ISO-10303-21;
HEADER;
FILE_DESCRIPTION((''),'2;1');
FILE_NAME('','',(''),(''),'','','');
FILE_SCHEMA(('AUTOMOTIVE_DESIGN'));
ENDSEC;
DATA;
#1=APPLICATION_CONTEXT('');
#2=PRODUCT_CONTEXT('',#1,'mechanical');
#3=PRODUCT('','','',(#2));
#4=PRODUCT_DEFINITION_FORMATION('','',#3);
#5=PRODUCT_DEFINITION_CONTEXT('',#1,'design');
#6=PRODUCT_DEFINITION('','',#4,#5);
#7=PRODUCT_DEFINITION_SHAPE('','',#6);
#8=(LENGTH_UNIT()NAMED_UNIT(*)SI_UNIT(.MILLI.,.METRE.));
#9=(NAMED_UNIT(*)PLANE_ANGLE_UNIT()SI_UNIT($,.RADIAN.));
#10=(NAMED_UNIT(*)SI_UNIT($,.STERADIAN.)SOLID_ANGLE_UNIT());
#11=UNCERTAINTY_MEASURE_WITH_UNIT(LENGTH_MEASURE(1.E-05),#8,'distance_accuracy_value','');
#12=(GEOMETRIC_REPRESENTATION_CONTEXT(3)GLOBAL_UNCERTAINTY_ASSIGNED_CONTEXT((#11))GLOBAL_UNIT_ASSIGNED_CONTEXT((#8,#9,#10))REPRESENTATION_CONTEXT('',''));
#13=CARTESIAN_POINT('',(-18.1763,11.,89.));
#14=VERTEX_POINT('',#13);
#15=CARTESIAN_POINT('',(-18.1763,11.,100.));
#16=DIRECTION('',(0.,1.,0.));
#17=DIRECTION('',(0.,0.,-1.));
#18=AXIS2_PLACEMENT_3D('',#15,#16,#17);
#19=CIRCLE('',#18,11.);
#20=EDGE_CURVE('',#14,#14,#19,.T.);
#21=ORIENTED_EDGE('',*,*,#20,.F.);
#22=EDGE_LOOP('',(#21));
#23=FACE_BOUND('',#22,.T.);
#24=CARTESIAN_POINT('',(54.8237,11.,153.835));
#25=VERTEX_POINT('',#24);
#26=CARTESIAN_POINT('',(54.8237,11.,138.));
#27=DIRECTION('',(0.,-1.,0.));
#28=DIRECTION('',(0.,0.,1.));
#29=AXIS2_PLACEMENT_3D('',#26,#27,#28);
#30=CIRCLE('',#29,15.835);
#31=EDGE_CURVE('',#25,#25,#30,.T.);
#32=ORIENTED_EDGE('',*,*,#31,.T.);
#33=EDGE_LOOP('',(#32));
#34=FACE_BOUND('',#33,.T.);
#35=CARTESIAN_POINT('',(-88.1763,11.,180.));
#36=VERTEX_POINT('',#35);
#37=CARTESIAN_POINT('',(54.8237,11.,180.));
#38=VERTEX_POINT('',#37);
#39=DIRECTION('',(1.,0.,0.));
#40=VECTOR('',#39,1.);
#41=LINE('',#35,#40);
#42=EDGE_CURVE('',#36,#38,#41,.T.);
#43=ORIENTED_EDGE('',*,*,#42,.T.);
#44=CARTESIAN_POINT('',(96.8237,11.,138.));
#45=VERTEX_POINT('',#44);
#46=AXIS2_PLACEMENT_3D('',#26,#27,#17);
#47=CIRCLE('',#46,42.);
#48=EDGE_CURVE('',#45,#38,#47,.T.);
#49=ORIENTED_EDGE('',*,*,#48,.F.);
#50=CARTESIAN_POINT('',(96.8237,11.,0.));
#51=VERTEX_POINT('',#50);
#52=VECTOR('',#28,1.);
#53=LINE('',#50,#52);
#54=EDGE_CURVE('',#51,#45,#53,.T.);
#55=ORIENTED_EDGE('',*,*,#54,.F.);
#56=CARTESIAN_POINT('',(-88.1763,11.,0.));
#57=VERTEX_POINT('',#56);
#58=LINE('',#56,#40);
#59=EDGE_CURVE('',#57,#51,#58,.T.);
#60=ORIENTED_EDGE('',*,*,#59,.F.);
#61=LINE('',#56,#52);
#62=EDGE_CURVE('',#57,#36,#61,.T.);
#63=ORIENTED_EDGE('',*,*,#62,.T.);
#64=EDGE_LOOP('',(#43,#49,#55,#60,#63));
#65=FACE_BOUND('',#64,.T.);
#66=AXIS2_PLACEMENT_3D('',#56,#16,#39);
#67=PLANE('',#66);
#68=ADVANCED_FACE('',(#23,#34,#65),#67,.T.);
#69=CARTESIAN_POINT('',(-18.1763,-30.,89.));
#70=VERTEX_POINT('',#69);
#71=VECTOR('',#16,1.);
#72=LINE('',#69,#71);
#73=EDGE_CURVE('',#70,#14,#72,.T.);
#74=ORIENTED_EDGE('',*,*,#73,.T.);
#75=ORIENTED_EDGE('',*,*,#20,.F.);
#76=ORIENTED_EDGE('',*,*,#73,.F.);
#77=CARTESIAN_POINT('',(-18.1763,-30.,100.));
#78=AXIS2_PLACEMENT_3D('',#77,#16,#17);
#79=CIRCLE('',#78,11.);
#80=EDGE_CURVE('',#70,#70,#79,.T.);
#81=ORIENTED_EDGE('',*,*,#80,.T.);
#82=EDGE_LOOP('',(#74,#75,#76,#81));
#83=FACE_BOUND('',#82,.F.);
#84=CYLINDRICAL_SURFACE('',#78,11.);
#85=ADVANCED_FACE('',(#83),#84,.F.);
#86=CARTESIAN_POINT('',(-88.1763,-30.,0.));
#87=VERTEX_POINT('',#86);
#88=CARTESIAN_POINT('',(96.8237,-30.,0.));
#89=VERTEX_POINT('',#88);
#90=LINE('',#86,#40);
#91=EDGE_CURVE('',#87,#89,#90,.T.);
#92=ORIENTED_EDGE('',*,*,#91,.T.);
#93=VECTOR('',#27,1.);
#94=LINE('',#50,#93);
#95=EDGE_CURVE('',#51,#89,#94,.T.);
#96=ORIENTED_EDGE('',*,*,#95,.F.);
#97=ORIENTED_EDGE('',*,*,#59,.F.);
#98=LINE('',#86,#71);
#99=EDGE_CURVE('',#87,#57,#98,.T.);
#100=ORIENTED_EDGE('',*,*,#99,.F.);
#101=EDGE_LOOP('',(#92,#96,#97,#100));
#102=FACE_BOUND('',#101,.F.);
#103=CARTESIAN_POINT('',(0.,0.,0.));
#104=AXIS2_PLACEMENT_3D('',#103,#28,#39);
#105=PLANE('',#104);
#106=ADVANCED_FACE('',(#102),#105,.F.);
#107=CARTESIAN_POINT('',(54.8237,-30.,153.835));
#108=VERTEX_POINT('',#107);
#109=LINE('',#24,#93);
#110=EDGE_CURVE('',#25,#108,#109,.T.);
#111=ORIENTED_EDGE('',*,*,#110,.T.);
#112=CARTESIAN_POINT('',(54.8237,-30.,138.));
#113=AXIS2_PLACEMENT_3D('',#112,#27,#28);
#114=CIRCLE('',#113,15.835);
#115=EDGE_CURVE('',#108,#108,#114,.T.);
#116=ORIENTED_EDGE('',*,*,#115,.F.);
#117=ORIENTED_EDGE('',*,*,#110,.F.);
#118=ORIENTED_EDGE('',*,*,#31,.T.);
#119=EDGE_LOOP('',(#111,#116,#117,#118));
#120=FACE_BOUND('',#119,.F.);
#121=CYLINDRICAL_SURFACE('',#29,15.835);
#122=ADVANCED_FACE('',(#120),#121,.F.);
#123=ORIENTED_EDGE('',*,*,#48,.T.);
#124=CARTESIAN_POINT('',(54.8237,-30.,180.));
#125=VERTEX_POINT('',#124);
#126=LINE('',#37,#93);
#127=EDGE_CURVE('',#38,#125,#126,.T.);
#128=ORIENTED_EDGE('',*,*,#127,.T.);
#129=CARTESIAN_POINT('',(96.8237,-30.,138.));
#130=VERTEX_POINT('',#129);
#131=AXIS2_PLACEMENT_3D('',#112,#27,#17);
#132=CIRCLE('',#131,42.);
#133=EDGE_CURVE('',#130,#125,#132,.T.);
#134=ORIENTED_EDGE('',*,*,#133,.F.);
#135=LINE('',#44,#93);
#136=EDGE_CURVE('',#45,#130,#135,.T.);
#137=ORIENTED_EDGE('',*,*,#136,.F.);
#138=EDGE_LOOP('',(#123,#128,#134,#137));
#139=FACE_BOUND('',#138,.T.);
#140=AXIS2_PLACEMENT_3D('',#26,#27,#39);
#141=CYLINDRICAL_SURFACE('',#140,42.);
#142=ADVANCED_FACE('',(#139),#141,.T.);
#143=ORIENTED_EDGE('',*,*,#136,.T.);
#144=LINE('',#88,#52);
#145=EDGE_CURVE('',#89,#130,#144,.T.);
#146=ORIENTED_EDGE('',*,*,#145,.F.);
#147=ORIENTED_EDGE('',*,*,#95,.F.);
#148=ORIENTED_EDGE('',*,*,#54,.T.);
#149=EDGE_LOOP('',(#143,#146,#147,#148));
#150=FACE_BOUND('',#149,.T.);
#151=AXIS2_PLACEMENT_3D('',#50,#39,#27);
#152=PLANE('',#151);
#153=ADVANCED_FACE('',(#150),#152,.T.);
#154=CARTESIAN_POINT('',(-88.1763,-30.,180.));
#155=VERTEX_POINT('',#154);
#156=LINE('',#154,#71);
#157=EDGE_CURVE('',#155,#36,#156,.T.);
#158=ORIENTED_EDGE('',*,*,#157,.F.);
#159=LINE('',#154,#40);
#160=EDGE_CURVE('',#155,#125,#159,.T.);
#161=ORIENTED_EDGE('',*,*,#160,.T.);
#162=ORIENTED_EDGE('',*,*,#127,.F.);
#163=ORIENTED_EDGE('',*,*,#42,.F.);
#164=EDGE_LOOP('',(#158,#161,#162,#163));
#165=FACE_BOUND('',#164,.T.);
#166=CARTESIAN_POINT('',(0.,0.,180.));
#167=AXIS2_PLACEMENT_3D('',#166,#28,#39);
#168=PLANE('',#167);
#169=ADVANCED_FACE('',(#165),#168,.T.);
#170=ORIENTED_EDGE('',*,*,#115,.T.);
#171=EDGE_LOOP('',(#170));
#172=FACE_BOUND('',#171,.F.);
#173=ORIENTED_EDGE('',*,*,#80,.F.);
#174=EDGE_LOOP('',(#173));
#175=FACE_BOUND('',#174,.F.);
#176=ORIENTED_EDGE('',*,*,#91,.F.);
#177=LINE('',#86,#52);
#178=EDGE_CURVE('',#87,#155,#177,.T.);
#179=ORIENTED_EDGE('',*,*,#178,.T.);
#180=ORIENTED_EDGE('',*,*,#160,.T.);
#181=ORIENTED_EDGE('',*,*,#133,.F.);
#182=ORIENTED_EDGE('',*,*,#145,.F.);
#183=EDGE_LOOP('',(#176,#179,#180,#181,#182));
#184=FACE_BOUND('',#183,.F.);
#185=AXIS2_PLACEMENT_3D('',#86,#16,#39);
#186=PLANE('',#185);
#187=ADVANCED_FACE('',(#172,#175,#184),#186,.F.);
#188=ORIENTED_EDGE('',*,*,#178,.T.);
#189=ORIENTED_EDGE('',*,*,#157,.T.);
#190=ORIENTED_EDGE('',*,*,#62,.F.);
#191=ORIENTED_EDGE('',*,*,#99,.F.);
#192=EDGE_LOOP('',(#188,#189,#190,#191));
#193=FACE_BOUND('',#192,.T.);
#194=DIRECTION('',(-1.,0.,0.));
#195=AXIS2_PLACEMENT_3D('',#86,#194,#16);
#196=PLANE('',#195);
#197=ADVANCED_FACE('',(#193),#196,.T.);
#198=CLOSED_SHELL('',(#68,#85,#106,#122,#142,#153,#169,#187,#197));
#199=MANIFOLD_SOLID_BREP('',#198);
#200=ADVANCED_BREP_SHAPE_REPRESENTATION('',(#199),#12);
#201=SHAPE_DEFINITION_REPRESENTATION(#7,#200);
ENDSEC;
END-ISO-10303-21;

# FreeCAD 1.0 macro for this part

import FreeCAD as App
import Part
import Sketcher
from FreeCAD import Vector


def edges_at(feature, points):
    """Names of the edges that pass closest to the given points."""
    edges = feature.Shape.Edges
    near = lambda p: min(range(len(edges)), key=lambda i: edges[i].distToShape(Part.Vertex(*p))[0])
    return sorted({f"Edge{near(p) + 1}" for p in points})


def add_polygon(sketch, points):
    """Adds a closed chain of lines whose ends are joined by coincident constraints."""
    first, n = sketch.GeometryCount, len(points)
    for a, b in zip(points, points[1:] + points[:1]):
        sketch.addGeometry(Part.LineSegment(App.Vector(*a, 0), App.Vector(*b, 0)), False)
    for i in range(n):
        sketch.addConstraint(Sketcher.Constraint("Coincident", first + i, 2, first + (i + 1) % n, 1))

doc = App.newDocument("Part")
body = doc.addObject("PartDesign::Body", "Body")

# Sketch on XY plane
sketch1 = body.newObject("Sketcher::SketchObject", "Sketch")
sketch1.AttachmentSupport = (doc.getObject("XY_Plane"), [""])
sketch1.MapMode = "FlatFace"
add_polygon(sketch1, [(-88, 11), (-88, -30), (97, -30), (97, 11)])  # lines 0-3
sketch1.addConstraint(Sketcher.Constraint("Vertical", 0))
sketch1.addConstraint(Sketcher.Constraint("Horizontal", 1))
sketch1.addConstraint(Sketcher.Constraint("Vertical", 2))
sketch1.addConstraint(Sketcher.Constraint("Horizontal", 3))
sketch1.addConstraint(Sketcher.Constraint("DistanceX", 1, 1, 1, 2, 185.0))
sketch1.addConstraint(Sketcher.Constraint("DistanceY", 0, 2, 0, 1, 41.0))
sketch1.addConstraint(Sketcher.Constraint("DistanceY", 0, 2, -1, 1, 30.0))
sketch1.addConstraint(Sketcher.Constraint("DistanceX", 0, 2, -1, 1, 88.1763))
pad1 = body.newObject("PartDesign::Pad", "Pad")
pad1.Profile = sketch1
pad1.Length = 180
doc.recompute()

fillet = body.newObject("PartDesign::Fillet", "Fillet")
fillet.Base = (pad1, edges_at(pad1, [(96.824, -9.5, 180)]))
fillet.Radius = 42

# Sketch on XZ plane
sketch2 = body.newObject("Sketcher::SketchObject", "Sketch001")
sketch2.AttachmentSupport = (doc.getObject("XZ_Plane"), [""])
sketch2.MapMode = "FlatFace"
sketch2.AttachmentOffset = App.Placement(Vector(0, 0, 30), App.Rotation())
sketch2.addGeometry(Part.Circle(Vector(-18, 100, 0), Vector(0, 0, 1), 11), False)
sketch2.addConstraint(Sketcher.Constraint("Diameter", 0, 22.0))
sketch2.addConstraint(Sketcher.Constraint("DistanceY", -1, 1, 0, 3, 100.0))
sketch2.addConstraint(Sketcher.Constraint("DistanceX", 0, 3, -1, 1, 18.1763))
doc.recompute()
hole = body.newObject("PartDesign::Hole", "Hole")
hole.Profile = sketch2
hole.ThreadType = "None"
hole.Diameter = 22
hole.DepthType = "ThroughAll"

# Sketch on XZ plane
sketch3 = body.newObject("Sketcher::SketchObject", "Sketch002")
sketch3.AttachmentSupport = (doc.getObject("XZ_Plane"), [""])
sketch3.MapMode = "FlatFace"
sketch3.AttachmentOffset = App.Placement(Vector(0, 0, -11), App.Rotation())
sketch3.addGeometry(Part.Circle(Vector(55, 138, 0), Vector(0, 0, 1), 16), False)
sketch3.addConstraint(Sketcher.Constraint("Diameter", 0, 31.67))
sketch3.addConstraint(Sketcher.Constraint("DistanceY", -1, 1, 0, 3, 138.0))
sketch3.addConstraint(Sketcher.Constraint("DistanceX", -1, 1, 0, 3, 54.8237))
doc.recompute()
hole2 = body.newObject("PartDesign::Hole", "Hole001")
hole2.Profile = sketch3
hole2.ThreadType = "None"
hole2.Diameter = 31.67
hole2.DepthType = "Dimension"
hole2.Depth = 96
hole2.DrillPoint = "Angled"
hole2.DrillPointAngle = 120
hole2.Reversed = True

doc.recompute()
